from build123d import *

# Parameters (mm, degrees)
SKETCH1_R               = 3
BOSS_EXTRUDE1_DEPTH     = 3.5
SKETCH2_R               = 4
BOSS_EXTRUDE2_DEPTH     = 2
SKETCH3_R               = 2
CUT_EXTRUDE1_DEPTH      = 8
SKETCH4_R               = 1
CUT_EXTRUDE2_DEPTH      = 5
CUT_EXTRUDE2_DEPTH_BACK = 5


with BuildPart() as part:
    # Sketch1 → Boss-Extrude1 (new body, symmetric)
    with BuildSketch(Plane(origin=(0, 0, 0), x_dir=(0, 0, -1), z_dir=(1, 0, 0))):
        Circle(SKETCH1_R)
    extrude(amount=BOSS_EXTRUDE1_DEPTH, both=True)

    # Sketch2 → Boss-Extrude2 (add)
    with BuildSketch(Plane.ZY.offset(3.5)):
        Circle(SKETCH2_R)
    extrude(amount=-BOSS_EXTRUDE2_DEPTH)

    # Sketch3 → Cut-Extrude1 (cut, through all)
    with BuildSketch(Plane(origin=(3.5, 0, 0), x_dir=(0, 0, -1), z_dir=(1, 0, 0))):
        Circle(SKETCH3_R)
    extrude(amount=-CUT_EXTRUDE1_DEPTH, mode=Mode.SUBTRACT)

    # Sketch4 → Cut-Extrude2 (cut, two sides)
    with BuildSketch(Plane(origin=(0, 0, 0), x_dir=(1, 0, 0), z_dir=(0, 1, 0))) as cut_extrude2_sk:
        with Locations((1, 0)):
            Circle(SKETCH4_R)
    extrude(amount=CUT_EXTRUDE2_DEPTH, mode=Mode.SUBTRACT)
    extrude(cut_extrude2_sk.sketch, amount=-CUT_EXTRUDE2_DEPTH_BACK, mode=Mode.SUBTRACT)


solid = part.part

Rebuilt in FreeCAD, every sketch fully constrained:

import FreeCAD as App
import Part
import Sketcher

V = App.Vector
Q = App.Units.Quantity

doc = App.newDocument("Part")
body = doc.addObject("PartDesign::Body", "Body")

sketch1 = body.newObject("Sketcher::SketchObject", "Sketch")
sketch1.AttachmentSupport = (doc.getObject("YZ_Plane"), [""])
sketch1.MapMode = "FlatFace"
sketch1.addGeometry(Part.Circle(V(0, 0, 0), V(0, 0, 1), 3), False)
sketch1.addConstraint([
    Sketcher.Constraint("Coincident", 0, 3, -1, 1),
    Sketcher.Constraint("Diameter", 0, Q("6 mm")),
])
pad1 = body.newObject("PartDesign::Pad", "Pad")
pad1.Profile = sketch1
pad1.Length = 7
pad1.Midplane = True

sketch2 = body.newObject("Sketcher::SketchObject", "Sketch001")
sketch2.AttachmentSupport = (doc.getObject("YZ_Plane"), [""])
sketch2.MapMode = "FlatFace"
sketch2.AttachmentOffset = App.Placement(V(0, 0, -3.5), App.Rotation())
sketch2.addGeometry(Part.Circle(V(0, 0, 0), V(0, 0, 1), 4), False)
sketch2.addConstraint([
    Sketcher.Constraint("Coincident", 0, 3, -1, 1),
    Sketcher.Constraint("Diameter", 0, Q("8 mm")),
])
pad2 = body.newObject("PartDesign::Pad", "Pad001")
pad2.Profile = sketch2
pad2.Length = 2

sketch3 = body.newObject("Sketcher::SketchObject", "Sketch002")
sketch3.AttachmentSupport = (doc.getObject("YZ_Plane"), [""])
sketch3.MapMode = "FlatFace"
sketch3.AttachmentOffset = App.Placement(V(0, 0, 3.5), App.Rotation())
sketch3.addGeometry(Part.Circle(V(0, 0, 0), V(0, 0, 1), 2), False)
sketch3.addConstraint([
    Sketcher.Constraint("Coincident", 0, 3, -1, 1),
    Sketcher.Constraint("Diameter", 0, Q("4 mm")),
])
pocket1 = body.newObject("PartDesign::Pocket", "Pocket")
pocket1.Profile = sketch3
pocket1.Type = "ThroughAll"

sketch4 = body.newObject("Sketcher::SketchObject", "Sketch003")
sketch4.AttachmentSupport = (doc.getObject("XZ_Plane"), [""])
sketch4.MapMode = "FlatFace"
sketch4.addGeometry(Part.Circle(V(1, 0, 0), V(0, 0, 1), 1), False)
sketch4.addConstraint([
    Sketcher.Constraint("PointOnObject", 0, 3, -1),
    Sketcher.Constraint("Diameter", 0, Q("2 mm")),
    Sketcher.Constraint("DistanceX", -1, 1, 0, 3, Q("1 mm")),
])
pocket2 = body.newObject("PartDesign::Pocket", "Pocket001")
pocket2.Profile = sketch4
pocket2.Type = "ThroughAll"
pocket2.Midplane = True

doc.recompute()
